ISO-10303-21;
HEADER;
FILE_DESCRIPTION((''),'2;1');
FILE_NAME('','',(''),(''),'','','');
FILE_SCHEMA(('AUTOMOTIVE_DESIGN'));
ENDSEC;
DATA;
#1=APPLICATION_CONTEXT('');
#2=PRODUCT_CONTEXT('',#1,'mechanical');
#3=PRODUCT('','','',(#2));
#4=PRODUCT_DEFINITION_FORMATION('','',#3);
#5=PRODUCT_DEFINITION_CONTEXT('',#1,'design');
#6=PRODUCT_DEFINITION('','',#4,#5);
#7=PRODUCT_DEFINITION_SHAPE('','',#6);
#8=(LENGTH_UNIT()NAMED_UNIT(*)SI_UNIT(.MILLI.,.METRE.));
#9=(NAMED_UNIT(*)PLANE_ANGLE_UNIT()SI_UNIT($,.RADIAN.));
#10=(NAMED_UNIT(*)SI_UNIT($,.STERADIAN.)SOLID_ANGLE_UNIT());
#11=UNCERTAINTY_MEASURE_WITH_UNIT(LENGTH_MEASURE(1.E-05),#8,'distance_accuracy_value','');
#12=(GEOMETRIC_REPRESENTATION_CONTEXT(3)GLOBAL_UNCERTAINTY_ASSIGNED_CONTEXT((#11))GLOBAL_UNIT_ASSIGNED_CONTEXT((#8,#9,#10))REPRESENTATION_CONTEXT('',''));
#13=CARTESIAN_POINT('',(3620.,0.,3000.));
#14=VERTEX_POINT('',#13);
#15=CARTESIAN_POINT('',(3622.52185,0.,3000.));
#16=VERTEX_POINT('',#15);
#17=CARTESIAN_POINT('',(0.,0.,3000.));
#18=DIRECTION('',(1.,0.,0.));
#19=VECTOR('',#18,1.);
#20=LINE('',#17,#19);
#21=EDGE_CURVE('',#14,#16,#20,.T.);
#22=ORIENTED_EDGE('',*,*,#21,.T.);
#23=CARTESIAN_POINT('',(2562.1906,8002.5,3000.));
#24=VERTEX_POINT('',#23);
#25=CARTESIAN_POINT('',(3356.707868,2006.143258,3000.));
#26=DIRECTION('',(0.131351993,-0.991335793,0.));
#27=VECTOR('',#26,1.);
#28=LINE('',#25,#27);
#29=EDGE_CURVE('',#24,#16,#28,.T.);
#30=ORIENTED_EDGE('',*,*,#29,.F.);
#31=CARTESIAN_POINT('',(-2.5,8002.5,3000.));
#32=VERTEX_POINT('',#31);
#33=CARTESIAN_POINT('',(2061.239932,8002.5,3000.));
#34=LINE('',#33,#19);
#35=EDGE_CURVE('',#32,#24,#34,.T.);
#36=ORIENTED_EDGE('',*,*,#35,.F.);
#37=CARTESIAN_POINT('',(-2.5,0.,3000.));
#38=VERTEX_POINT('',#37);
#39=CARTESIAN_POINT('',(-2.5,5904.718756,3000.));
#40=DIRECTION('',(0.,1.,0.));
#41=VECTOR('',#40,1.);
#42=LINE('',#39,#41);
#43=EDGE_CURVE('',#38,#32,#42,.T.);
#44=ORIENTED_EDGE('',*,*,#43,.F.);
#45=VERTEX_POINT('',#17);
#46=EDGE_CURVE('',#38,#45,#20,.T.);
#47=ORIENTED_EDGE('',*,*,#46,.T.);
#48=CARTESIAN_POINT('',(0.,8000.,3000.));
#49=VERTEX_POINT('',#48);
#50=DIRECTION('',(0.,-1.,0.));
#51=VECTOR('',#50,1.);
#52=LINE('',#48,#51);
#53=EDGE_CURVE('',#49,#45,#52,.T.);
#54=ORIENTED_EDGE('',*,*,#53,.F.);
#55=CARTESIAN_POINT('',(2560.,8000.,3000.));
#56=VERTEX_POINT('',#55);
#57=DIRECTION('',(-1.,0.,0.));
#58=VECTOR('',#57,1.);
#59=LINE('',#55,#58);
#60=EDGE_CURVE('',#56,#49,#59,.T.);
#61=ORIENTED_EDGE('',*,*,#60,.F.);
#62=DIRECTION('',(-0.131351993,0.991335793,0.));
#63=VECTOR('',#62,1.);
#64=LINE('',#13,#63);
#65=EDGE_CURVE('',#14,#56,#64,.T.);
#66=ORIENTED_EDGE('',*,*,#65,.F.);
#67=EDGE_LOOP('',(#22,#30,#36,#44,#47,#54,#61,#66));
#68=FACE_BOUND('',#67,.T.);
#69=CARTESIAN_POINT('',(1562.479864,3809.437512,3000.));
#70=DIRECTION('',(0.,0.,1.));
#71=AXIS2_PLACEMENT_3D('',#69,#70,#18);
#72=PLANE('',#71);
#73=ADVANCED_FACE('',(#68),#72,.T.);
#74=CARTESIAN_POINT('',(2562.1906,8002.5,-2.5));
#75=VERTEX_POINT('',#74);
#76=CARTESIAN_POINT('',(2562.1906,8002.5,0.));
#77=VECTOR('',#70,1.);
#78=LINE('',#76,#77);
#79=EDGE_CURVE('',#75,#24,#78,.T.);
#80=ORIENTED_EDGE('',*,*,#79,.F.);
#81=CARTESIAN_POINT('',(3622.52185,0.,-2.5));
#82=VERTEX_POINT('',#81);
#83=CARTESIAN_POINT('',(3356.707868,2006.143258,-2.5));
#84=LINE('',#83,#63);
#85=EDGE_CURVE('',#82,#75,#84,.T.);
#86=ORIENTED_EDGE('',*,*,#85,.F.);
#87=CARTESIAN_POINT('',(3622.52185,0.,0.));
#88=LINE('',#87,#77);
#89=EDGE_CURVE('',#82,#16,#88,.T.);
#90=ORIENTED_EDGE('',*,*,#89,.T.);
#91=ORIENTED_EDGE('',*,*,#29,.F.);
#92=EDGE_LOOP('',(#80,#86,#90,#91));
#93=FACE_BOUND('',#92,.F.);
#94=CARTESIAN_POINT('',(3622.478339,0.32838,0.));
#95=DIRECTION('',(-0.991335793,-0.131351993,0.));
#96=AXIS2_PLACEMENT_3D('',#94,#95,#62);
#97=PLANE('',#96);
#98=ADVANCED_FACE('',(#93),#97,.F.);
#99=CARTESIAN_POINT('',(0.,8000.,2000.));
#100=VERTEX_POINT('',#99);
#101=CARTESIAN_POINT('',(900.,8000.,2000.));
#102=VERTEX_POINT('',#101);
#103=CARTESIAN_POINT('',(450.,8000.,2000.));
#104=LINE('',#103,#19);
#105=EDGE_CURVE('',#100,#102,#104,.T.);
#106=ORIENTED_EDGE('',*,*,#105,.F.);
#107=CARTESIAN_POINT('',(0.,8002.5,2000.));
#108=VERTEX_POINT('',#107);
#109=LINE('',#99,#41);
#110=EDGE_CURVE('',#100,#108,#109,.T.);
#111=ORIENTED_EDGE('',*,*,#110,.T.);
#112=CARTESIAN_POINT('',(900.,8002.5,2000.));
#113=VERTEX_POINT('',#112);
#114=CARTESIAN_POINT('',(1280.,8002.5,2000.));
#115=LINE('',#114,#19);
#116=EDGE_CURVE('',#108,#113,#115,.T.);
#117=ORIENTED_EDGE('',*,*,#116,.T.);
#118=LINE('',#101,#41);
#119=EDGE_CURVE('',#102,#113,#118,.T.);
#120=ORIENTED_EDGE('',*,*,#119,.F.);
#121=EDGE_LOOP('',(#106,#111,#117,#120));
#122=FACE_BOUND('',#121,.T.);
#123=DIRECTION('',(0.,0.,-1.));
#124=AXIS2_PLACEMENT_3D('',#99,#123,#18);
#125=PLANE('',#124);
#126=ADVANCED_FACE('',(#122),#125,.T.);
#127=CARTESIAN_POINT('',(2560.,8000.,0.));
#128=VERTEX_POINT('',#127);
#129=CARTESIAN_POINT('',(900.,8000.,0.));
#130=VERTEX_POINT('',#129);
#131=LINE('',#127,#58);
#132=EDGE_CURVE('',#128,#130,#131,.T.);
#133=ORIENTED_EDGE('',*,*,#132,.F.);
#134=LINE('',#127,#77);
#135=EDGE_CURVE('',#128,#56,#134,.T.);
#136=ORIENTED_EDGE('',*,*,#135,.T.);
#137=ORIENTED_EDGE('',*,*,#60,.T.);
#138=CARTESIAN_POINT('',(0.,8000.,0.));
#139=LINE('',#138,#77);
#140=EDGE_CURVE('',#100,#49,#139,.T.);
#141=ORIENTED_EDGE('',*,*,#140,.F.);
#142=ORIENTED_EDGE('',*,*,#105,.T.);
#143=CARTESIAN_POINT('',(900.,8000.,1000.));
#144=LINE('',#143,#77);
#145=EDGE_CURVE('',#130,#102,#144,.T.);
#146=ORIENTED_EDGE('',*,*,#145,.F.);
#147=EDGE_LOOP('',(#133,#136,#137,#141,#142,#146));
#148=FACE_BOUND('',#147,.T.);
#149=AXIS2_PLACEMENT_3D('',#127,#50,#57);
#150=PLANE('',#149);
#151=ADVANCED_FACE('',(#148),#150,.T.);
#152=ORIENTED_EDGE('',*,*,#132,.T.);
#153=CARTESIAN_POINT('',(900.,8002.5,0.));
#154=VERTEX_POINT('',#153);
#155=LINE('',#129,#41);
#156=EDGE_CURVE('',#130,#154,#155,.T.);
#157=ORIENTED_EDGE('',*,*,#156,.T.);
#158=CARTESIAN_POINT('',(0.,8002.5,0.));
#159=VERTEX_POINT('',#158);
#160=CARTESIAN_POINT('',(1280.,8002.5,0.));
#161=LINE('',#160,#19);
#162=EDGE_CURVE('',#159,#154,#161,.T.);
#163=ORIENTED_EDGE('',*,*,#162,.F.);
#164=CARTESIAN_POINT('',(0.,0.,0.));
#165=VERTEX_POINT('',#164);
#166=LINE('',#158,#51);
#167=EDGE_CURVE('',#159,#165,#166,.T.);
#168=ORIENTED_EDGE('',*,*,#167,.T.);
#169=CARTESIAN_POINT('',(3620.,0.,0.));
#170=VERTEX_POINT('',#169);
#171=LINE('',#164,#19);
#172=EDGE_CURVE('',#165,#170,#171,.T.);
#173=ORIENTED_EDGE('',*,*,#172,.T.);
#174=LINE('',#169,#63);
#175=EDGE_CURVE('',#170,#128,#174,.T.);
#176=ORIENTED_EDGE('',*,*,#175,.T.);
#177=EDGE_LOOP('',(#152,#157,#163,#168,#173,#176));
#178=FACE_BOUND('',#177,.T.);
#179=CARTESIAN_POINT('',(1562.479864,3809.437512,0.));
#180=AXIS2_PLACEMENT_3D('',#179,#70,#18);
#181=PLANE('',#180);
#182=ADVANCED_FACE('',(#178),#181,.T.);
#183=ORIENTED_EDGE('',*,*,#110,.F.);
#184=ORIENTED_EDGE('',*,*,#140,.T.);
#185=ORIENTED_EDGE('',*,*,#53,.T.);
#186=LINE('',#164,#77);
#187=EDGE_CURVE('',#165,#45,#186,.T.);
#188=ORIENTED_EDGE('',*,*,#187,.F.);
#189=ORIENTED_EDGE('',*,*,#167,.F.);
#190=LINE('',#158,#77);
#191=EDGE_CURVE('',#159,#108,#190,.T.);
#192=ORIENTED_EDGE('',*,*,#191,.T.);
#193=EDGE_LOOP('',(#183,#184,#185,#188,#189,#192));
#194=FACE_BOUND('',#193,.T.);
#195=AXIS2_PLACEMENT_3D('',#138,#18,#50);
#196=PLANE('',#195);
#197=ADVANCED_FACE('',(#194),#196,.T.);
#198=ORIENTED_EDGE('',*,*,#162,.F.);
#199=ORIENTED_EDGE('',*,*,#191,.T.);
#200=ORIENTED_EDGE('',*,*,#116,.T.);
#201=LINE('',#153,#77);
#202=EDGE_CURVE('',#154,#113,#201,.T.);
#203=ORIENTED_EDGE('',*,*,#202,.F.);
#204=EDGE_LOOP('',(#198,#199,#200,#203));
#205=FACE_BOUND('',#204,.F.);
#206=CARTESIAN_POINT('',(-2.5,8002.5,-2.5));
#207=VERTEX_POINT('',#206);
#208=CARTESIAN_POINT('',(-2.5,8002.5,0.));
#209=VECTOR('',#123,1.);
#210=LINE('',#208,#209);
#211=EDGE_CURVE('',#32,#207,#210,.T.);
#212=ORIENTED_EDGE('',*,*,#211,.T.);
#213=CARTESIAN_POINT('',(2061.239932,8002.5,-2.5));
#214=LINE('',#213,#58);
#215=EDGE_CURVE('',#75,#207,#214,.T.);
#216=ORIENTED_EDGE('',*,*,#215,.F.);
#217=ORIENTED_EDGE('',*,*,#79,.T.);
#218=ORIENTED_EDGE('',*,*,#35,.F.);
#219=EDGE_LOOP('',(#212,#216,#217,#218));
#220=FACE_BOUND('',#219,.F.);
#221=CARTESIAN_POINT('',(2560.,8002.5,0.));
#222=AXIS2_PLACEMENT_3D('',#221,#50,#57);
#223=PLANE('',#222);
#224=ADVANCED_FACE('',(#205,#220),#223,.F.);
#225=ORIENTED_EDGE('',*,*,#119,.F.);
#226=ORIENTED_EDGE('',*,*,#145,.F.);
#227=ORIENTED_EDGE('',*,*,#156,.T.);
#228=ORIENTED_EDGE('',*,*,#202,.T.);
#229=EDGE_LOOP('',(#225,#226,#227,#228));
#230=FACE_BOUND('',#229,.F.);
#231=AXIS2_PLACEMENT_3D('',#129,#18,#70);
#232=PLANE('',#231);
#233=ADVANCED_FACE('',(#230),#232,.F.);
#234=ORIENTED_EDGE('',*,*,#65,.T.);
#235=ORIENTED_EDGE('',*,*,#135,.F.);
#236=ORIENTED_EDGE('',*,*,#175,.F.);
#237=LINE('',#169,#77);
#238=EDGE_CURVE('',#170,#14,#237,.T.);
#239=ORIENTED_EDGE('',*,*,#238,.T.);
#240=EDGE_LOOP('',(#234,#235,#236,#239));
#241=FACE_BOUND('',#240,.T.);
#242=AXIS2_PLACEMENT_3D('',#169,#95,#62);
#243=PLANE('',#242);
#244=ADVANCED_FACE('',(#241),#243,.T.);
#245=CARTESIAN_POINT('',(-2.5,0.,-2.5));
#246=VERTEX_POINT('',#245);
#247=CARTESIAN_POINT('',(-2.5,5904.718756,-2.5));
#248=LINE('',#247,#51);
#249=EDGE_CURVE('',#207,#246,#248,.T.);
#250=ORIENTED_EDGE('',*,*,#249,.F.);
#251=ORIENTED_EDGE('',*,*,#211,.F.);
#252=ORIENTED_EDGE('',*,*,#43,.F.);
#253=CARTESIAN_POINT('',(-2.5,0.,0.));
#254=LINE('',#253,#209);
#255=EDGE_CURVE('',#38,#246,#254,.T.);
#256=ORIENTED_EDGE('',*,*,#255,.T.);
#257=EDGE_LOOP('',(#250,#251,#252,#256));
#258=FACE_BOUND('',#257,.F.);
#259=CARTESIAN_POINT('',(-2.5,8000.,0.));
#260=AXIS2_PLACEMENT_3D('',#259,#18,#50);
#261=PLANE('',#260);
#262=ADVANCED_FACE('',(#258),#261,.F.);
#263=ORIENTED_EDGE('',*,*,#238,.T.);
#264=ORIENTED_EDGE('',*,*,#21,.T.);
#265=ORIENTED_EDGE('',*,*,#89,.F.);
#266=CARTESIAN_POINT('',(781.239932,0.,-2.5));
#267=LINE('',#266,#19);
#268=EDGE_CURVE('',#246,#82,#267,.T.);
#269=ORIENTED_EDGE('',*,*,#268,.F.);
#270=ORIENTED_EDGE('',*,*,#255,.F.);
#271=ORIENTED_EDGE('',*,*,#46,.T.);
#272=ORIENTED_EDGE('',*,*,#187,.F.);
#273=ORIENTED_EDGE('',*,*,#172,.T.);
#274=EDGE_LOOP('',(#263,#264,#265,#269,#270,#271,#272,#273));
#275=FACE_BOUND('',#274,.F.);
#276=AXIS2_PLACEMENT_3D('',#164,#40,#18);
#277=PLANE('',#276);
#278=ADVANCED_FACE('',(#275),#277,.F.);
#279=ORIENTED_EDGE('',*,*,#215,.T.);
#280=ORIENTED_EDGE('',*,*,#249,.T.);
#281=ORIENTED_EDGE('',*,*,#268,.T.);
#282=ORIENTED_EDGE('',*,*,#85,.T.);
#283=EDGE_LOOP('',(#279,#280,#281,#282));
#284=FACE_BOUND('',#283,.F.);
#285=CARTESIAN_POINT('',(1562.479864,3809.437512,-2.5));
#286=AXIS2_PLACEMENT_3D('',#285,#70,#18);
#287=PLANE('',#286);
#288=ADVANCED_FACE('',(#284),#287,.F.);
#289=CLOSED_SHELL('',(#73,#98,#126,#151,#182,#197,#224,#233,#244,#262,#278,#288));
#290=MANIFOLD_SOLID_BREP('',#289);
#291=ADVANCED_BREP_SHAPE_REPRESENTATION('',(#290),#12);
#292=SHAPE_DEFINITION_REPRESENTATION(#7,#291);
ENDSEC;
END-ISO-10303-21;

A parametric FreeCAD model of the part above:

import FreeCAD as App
import Part
import Sketcher
from FreeCAD import Vector


def faces_at(feature, points):
    """Names of the faces that lie closest to the given points."""
    faces = feature.Shape.Faces
    near = lambda p: min(range(len(faces)), key=lambda i: faces[i].distToShape(Part.Vertex(*p))[0])
    return sorted({f"Face{near(p) + 1}" for p in points})

doc = App.newDocument("Part")
body = doc.addObject("PartDesign::Body", "Body")

sketch1 = doc.addObject("Sketcher::SketchObject", "Sketch")
body.addObject(sketch1)
sketch1.AttachmentSupport = (doc.XY_Plane, [""])
sketch1.MapMode = "FlatFace"
sketch1.addGeometry(Part.LineSegment(Vector(0, 8000, 0), Vector(0, 0, 0)), False)
sketch1.addGeometry(Part.LineSegment(Vector(0, 0, 0), Vector(3620, 0, 0)), False)
sketch1.addGeometry(Part.LineSegment(Vector(3620, 0, 0), Vector(2560, 8000, 0)), False)
sketch1.addGeometry(Part.LineSegment(Vector(2560, 8000, 0), Vector(0, 8000, 0)), False)
sketch1.addConstraint(Sketcher.Constraint("Coincident", 0, 2, 1, 1))
sketch1.addConstraint(Sketcher.Constraint("Coincident", 1, 2, 2, 1))
sketch1.addConstraint(Sketcher.Constraint("Coincident", 2, 2, 3, 1))
sketch1.addConstraint(Sketcher.Constraint("Coincident", 3, 2, 0, 1))
sketch1.addConstraint(Sketcher.Constraint("Vertical", 0))
sketch1.addConstraint(Sketcher.Constraint("Horizontal", 1))
sketch1.addConstraint(Sketcher.Constraint("Horizontal", 3))
sketch1.addConstraint(Sketcher.Constraint("Coincident", 0, 2, -1, 1))
sketch1.addConstraint(Sketcher.Constraint("DistanceX", 1, 1, 1, 2, 3620.0))
sketch1.addConstraint(Sketcher.Constraint("DistanceX", 3, 2, 3, 1, 2560.0))
sketch1.addConstraint(Sketcher.Constraint("DistanceY", 0, 2, 0, 1, 8000.0))
pad1 = doc.addObject("PartDesign::Pad", "Pad")
body.addObject(pad1)
pad1.Profile = sketch1
pad1.Length = 3000
doc.recompute()

thickness = doc.addObject("PartDesign::Thickness", "Thickness")
body.addObject(thickness)
thickness.Base = (pad1, faces_at(pad1, [(1810, 4000, 3000), (1810, 0, 1500)]))
thickness.Value = 2.5
thickness.Reversed = False
thickness.Join = "Intersection"

sketch2 = doc.addObject("Sketcher::SketchObject", "Sketch001")
body.addObject(sketch2)
sketch2.AttachmentSupport = (doc.XZ_Plane, [""])
sketch2.MapMode = "FlatFace"
sketch2.AttachmentOffset = App.Placement(Vector(0, 0, -8000), App.Rotation())
sketch2.addGeometry(Part.LineSegment(Vector(0, 2000, 0), Vector(0, 0, 0)), False)
sketch2.addGeometry(Part.LineSegment(Vector(0, 0, 0), Vector(900, 0, 0)), False)
sketch2.addGeometry(Part.LineSegment(Vector(900, 0, 0), Vector(900, 2000, 0)), False)
sketch2.addGeometry(Part.LineSegment(Vector(900, 2000, 0), Vector(0, 2000, 0)), False)
sketch2.addConstraint(Sketcher.Constraint("Coincident", 0, 2, 1, 1))
sketch2.addConstraint(Sketcher.Constraint("Coincident", 1, 2, 2, 1))
sketch2.addConstraint(Sketcher.Constraint("Coincident", 2, 2, 3, 1))
sketch2.addConstraint(Sketcher.Constraint("Coincident", 3, 2, 0, 1))
sketch2.addConstraint(Sketcher.Constraint("Vertical", 0))
sketch2.addConstraint(Sketcher.Constraint("Horizontal", 1))
sketch2.addConstraint(Sketcher.Constraint("Vertical", 2))
sketch2.addConstraint(Sketcher.Constraint("Horizontal", 3))
sketch2.addConstraint(Sketcher.Constraint("Coincident", 0, 2, -1, 1))
sketch2.addConstraint(Sketcher.Constraint("DistanceX", 1, 1, 1, 2, 900.0))
sketch2.addConstraint(Sketcher.Constraint("DistanceY", 0, 2, 0, 1, 2000.0))
pocket1 = doc.addObject("PartDesign::Pocket", "Pocket")
body.addObject(pocket1)
pocket1.Profile = sketch2
pocket1.Length = 25

doc.recompute()
